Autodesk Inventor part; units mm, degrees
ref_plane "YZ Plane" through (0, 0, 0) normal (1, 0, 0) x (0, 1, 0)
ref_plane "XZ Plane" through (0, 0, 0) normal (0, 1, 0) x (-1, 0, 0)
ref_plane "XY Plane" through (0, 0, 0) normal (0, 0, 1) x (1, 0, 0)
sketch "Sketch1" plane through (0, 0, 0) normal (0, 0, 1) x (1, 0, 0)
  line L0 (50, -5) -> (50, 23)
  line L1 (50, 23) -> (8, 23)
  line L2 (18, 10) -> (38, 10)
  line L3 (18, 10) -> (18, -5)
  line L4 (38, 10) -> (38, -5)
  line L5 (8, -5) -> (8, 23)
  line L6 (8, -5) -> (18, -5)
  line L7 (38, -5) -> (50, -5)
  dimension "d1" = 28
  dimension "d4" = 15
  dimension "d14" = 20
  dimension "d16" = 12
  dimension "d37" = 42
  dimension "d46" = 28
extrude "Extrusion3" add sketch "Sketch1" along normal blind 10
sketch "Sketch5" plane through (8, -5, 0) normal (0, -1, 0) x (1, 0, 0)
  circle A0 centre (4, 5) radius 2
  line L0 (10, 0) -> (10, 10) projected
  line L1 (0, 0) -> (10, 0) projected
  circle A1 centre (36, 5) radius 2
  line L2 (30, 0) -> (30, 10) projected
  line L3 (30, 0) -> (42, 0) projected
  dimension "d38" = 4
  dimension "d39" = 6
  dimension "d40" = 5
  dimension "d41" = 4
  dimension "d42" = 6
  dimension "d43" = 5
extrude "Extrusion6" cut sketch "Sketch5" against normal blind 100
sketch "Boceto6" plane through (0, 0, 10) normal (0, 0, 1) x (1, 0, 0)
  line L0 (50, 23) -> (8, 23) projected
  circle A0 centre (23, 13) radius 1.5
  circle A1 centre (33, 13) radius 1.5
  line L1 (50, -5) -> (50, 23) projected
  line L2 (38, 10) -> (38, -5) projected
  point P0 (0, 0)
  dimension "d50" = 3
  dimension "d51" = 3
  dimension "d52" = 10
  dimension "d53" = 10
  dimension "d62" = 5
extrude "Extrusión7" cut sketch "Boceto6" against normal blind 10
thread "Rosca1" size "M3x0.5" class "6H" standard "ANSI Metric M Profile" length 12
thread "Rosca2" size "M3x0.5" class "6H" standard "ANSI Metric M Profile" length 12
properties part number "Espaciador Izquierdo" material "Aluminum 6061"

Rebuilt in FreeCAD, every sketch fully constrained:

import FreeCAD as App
import Part
import Sketcher

V = App.Vector

doc = App.newDocument("Part")
body = doc.addObject("PartDesign::Body", "Body")

# Sketch on XY plane
sketch1 = body.newObject("Sketcher::SketchObject", "Sketch")
sketch1.AttachmentSupport = (doc.getObject("XY_Plane"), [""])
sketch1.MapMode = "FlatFace"
sketch1.addGeometry([
    Part.LineSegment(V(38, -5, 0), V(50, -5, 0)),  # 0
    Part.LineSegment(V(50, -5, 0), V(50, 23, 0)),  # 1
    Part.LineSegment(V(50, 23, 0), V(8, 23, 0)),  # 2
    Part.LineSegment(V(8, 23, 0), V(8, -5, 0)),  # 3
    Part.LineSegment(V(8, -5, 0), V(18, -5, 0)),  # 4
    Part.LineSegment(V(18, -5, 0), V(18, 10, 0)),  # 5
    Part.LineSegment(V(18, 10, 0), V(38, 10, 0)),  # 6
    Part.LineSegment(V(38, 10, 0), V(38, -5, 0)),  # 7
], False)
sketch1.addConstraint([
    Sketcher.Constraint("Coincident", 0, 2, 1, 1),
    Sketcher.Constraint("Coincident", 1, 2, 2, 1),
    Sketcher.Constraint("Coincident", 2, 2, 3, 1),
    Sketcher.Constraint("Coincident", 3, 2, 4, 1),
    Sketcher.Constraint("Coincident", 4, 2, 5, 1),
    Sketcher.Constraint("Coincident", 5, 2, 6, 1),
    Sketcher.Constraint("Coincident", 6, 2, 7, 1),
    Sketcher.Constraint("Coincident", 7, 2, 0, 1),
    Sketcher.Constraint("Horizontal", 0),
    Sketcher.Constraint("Vertical", 1),
    Sketcher.Constraint("Horizontal", 2),
    Sketcher.Constraint("Vertical", 3),
    Sketcher.Constraint("Horizontal", 4),
    Sketcher.Constraint("Vertical", 5),
    Sketcher.Constraint("Horizontal", 6),
    Sketcher.Constraint("Vertical", 7),
    Sketcher.Constraint("Horizontal", 0, 2, 3, 2),
    Sketcher.Constraint("DistanceX", 0, 1, 0, 2, 12.0),
    Sketcher.Constraint("DistanceX", 2, 2, 2, 1, 42.0),
    Sketcher.Constraint("DistanceX", 6, 1, 6, 2, 20.0),
    Sketcher.Constraint("DistanceY", 1, 1, 1, 2, 28.0),
    Sketcher.Constraint("DistanceY", 5, 1, 5, 2, 15.0),
    Sketcher.Constraint("DistanceX", -1, 1, 0, 2, 50.0),
    Sketcher.Constraint("DistanceY", 0, 2, -1, 1, 5.0),
])
pad1 = body.newObject("PartDesign::Pad", "Pad")
pad1.Profile = sketch1
pad1.Length = 10

# Sketch on XZ plane
sketch2 = body.newObject("Sketcher::SketchObject", "Sketch001")
sketch2.AttachmentSupport = (doc.getObject("XZ_Plane"), [""])
sketch2.MapMode = "FlatFace"
sketch2.AttachmentOffset = App.Placement(V(0, 0, 5), App.Rotation())
sketch2.addGeometry([
    Part.Circle(V(12, 5, 0), V(0, 0, 1), 2),
    Part.Circle(V(44, 5, 0), V(0, 0, 1), 2),
], False)
sketch2.addConstraint([
    Sketcher.Constraint("Equal", 0, 1),
    Sketcher.Constraint("Horizontal", 0, 3, 1, 3),
    Sketcher.Constraint("Diameter", 0, 4.0),
    Sketcher.Constraint("DistanceY", -1, 1, 0, 3, 5.0),
    Sketcher.Constraint("DistanceX", -1, 1, 0, 3, 12.0),
    Sketcher.Constraint("DistanceX", -1, 1, 1, 3, 44.0),
])
pocket1 = body.newObject("PartDesign::Pocket", "Pocket")
pocket1.Profile = sketch2
pocket1.Length = 100

# Sketch on XY plane
sketch3 = body.newObject("Sketcher::SketchObject", "Sketch002")
sketch3.AttachmentSupport = (doc.getObject("XY_Plane"), [""])
sketch3.MapMode = "FlatFace"
sketch3.AttachmentOffset = App.Placement(V(0, 0, 10), App.Rotation())
sketch3.addGeometry([
    Part.Circle(V(23, 13, 0), V(0, 0, 1), 1.5),
    Part.Circle(V(33, 13, 0), V(0, 0, 1), 1.5),
], False)
sketch3.addConstraint([
    Sketcher.Constraint("Equal", 0, 1),
    Sketcher.Constraint("Horizontal", 0, 3, 1, 3),
    Sketcher.Constraint("Diameter", 0, 3.0),
    Sketcher.Constraint("DistanceX", 0, 3, 1, 3, 10.0),
    Sketcher.Constraint("DistanceX", -1, 1, 0, 3, 23.0),
    Sketcher.Constraint("DistanceY", -1, 1, 0, 3, 13.0),
])
pocket2 = body.newObject("PartDesign::Pocket", "Pocket001")
pocket2.Profile = sketch3
pocket2.Length = 10

doc.recompute()
